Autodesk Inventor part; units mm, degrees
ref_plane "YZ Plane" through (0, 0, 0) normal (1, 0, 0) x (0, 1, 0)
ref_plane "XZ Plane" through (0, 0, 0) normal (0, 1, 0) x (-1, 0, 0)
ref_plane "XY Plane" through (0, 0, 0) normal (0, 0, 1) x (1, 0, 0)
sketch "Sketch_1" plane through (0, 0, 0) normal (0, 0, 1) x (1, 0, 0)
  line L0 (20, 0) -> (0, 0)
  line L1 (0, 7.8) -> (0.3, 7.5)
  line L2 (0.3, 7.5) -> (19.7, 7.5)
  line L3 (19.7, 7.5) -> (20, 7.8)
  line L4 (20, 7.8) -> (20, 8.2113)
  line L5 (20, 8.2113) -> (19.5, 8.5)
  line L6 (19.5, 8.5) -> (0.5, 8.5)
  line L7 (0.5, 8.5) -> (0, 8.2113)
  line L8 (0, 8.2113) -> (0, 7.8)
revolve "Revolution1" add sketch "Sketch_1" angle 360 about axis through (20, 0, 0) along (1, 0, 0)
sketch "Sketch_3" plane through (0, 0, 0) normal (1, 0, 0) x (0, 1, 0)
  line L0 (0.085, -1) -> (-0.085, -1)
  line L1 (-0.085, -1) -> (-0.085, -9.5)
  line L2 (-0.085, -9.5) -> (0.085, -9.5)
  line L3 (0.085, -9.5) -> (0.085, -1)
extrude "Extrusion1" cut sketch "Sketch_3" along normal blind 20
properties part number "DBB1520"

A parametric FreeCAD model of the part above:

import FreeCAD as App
import Part
import Sketcher
from FreeCAD import Vector


def add_polygon(sketch, points):
    """Adds a closed chain of lines whose ends are joined by coincident constraints."""
    first, n = sketch.GeometryCount, len(points)
    for a, b in zip(points, points[1:] + points[:1]):
        sketch.addGeometry(Part.LineSegment(App.Vector(*a, 0), App.Vector(*b, 0)), False)
    for i in range(n):
        sketch.addConstraint(Sketcher.Constraint("Coincident", first + i, 2, first + (i + 1) % n, 1))

doc = App.newDocument("Part")
body = doc.addObject("PartDesign::Body", "Body")

# Sketch on XY plane
sketch1 = doc.addObject("Sketcher::SketchObject", "Sketch")
body.addObject(sketch1)
sketch1.AttachmentSupport = (doc.XY_Plane, [""])
sketch1.MapMode = "FlatFace"
add_polygon(sketch1, [(0, 8.2113), (0, 7.8), (0.3, 7.5), (19.7, 7.5), (20, 7.8), (20, 8.2113), (19.5, 8.5), (0.5, 8.5)])  # lines 0-7
sketch1.addConstraint([
    Sketcher.Constraint("Vertical", 0),
    Sketcher.Constraint("Horizontal", 2),
    Sketcher.Constraint("Vertical", 4),
    Sketcher.Constraint("Horizontal", 6),
    Sketcher.Constraint("PointOnObject", 0, 2, -2),
    Sketcher.Constraint("Perpendicular", 1, 3),
    Sketcher.Constraint("Horizontal", 0, 2, 3, 2),
    Sketcher.Constraint("Horizontal", 4, 2, 7, 2),
    Sketcher.Constraint("Equal", 1, 3),
    Sketcher.Constraint("Equal", 5, 7),
    Sketcher.Constraint("DistanceX", 6, 2, 6, 1, 19.0),
    Sketcher.Constraint("DistanceX", 2, 1, 2, 2, 19.4),
    Sketcher.Constraint("DistanceX", -1, 1, 3, 2, 20.0),
    Sketcher.Constraint("DistanceY", 2, 2, 5, 2, 1.0),
    Sketcher.Constraint("DistanceY", -1, 1, 0, 2, 7.8),
    Sketcher.Constraint("DistanceY", 0, 2, 0, 1, 0.4113),
])
revolution = doc.addObject("PartDesign::Revolution", "Revolution")
body.addObject(revolution)
revolution.Profile = sketch1
revolution.ReferenceAxis = (sketch1, ["H_Axis"])
revolution.Angle = 360

# Sketch on YZ plane
sketch2 = doc.addObject("Sketcher::SketchObject", "Sketch001")
body.addObject(sketch2)
sketch2.AttachmentSupport = (doc.YZ_Plane, [""])
sketch2.MapMode = "FlatFace"
add_polygon(sketch2, [(0.085, -9.5), (0.085, -1), (-0.085, -1), (-0.085, -9.5)])  # lines 0-3
sketch2.addConstraint([
    Sketcher.Constraint("Vertical", 0),
    Sketcher.Constraint("Horizontal", 1),
    Sketcher.Constraint("Vertical", 2),
    Sketcher.Constraint("Horizontal", 3),
    Sketcher.Constraint("DistanceY", 0, 1, 0, 2, 8.5),
    Sketcher.Constraint("DistanceY", 0, 2, -1, 1, 1.0),
    Sketcher.Constraint("DistanceX", 1, 2, 1, 1, 0.17),
    Sketcher.Constraint("DistanceX", -1, 1, 0, 2, 0.085),
])
pocket1 = doc.addObject("PartDesign::Pocket", "Pocket")
body.addObject(pocket1)
pocket1.Profile = sketch2
pocket1.Length = 20
pocket1.Reversed = True

doc.recompute()
